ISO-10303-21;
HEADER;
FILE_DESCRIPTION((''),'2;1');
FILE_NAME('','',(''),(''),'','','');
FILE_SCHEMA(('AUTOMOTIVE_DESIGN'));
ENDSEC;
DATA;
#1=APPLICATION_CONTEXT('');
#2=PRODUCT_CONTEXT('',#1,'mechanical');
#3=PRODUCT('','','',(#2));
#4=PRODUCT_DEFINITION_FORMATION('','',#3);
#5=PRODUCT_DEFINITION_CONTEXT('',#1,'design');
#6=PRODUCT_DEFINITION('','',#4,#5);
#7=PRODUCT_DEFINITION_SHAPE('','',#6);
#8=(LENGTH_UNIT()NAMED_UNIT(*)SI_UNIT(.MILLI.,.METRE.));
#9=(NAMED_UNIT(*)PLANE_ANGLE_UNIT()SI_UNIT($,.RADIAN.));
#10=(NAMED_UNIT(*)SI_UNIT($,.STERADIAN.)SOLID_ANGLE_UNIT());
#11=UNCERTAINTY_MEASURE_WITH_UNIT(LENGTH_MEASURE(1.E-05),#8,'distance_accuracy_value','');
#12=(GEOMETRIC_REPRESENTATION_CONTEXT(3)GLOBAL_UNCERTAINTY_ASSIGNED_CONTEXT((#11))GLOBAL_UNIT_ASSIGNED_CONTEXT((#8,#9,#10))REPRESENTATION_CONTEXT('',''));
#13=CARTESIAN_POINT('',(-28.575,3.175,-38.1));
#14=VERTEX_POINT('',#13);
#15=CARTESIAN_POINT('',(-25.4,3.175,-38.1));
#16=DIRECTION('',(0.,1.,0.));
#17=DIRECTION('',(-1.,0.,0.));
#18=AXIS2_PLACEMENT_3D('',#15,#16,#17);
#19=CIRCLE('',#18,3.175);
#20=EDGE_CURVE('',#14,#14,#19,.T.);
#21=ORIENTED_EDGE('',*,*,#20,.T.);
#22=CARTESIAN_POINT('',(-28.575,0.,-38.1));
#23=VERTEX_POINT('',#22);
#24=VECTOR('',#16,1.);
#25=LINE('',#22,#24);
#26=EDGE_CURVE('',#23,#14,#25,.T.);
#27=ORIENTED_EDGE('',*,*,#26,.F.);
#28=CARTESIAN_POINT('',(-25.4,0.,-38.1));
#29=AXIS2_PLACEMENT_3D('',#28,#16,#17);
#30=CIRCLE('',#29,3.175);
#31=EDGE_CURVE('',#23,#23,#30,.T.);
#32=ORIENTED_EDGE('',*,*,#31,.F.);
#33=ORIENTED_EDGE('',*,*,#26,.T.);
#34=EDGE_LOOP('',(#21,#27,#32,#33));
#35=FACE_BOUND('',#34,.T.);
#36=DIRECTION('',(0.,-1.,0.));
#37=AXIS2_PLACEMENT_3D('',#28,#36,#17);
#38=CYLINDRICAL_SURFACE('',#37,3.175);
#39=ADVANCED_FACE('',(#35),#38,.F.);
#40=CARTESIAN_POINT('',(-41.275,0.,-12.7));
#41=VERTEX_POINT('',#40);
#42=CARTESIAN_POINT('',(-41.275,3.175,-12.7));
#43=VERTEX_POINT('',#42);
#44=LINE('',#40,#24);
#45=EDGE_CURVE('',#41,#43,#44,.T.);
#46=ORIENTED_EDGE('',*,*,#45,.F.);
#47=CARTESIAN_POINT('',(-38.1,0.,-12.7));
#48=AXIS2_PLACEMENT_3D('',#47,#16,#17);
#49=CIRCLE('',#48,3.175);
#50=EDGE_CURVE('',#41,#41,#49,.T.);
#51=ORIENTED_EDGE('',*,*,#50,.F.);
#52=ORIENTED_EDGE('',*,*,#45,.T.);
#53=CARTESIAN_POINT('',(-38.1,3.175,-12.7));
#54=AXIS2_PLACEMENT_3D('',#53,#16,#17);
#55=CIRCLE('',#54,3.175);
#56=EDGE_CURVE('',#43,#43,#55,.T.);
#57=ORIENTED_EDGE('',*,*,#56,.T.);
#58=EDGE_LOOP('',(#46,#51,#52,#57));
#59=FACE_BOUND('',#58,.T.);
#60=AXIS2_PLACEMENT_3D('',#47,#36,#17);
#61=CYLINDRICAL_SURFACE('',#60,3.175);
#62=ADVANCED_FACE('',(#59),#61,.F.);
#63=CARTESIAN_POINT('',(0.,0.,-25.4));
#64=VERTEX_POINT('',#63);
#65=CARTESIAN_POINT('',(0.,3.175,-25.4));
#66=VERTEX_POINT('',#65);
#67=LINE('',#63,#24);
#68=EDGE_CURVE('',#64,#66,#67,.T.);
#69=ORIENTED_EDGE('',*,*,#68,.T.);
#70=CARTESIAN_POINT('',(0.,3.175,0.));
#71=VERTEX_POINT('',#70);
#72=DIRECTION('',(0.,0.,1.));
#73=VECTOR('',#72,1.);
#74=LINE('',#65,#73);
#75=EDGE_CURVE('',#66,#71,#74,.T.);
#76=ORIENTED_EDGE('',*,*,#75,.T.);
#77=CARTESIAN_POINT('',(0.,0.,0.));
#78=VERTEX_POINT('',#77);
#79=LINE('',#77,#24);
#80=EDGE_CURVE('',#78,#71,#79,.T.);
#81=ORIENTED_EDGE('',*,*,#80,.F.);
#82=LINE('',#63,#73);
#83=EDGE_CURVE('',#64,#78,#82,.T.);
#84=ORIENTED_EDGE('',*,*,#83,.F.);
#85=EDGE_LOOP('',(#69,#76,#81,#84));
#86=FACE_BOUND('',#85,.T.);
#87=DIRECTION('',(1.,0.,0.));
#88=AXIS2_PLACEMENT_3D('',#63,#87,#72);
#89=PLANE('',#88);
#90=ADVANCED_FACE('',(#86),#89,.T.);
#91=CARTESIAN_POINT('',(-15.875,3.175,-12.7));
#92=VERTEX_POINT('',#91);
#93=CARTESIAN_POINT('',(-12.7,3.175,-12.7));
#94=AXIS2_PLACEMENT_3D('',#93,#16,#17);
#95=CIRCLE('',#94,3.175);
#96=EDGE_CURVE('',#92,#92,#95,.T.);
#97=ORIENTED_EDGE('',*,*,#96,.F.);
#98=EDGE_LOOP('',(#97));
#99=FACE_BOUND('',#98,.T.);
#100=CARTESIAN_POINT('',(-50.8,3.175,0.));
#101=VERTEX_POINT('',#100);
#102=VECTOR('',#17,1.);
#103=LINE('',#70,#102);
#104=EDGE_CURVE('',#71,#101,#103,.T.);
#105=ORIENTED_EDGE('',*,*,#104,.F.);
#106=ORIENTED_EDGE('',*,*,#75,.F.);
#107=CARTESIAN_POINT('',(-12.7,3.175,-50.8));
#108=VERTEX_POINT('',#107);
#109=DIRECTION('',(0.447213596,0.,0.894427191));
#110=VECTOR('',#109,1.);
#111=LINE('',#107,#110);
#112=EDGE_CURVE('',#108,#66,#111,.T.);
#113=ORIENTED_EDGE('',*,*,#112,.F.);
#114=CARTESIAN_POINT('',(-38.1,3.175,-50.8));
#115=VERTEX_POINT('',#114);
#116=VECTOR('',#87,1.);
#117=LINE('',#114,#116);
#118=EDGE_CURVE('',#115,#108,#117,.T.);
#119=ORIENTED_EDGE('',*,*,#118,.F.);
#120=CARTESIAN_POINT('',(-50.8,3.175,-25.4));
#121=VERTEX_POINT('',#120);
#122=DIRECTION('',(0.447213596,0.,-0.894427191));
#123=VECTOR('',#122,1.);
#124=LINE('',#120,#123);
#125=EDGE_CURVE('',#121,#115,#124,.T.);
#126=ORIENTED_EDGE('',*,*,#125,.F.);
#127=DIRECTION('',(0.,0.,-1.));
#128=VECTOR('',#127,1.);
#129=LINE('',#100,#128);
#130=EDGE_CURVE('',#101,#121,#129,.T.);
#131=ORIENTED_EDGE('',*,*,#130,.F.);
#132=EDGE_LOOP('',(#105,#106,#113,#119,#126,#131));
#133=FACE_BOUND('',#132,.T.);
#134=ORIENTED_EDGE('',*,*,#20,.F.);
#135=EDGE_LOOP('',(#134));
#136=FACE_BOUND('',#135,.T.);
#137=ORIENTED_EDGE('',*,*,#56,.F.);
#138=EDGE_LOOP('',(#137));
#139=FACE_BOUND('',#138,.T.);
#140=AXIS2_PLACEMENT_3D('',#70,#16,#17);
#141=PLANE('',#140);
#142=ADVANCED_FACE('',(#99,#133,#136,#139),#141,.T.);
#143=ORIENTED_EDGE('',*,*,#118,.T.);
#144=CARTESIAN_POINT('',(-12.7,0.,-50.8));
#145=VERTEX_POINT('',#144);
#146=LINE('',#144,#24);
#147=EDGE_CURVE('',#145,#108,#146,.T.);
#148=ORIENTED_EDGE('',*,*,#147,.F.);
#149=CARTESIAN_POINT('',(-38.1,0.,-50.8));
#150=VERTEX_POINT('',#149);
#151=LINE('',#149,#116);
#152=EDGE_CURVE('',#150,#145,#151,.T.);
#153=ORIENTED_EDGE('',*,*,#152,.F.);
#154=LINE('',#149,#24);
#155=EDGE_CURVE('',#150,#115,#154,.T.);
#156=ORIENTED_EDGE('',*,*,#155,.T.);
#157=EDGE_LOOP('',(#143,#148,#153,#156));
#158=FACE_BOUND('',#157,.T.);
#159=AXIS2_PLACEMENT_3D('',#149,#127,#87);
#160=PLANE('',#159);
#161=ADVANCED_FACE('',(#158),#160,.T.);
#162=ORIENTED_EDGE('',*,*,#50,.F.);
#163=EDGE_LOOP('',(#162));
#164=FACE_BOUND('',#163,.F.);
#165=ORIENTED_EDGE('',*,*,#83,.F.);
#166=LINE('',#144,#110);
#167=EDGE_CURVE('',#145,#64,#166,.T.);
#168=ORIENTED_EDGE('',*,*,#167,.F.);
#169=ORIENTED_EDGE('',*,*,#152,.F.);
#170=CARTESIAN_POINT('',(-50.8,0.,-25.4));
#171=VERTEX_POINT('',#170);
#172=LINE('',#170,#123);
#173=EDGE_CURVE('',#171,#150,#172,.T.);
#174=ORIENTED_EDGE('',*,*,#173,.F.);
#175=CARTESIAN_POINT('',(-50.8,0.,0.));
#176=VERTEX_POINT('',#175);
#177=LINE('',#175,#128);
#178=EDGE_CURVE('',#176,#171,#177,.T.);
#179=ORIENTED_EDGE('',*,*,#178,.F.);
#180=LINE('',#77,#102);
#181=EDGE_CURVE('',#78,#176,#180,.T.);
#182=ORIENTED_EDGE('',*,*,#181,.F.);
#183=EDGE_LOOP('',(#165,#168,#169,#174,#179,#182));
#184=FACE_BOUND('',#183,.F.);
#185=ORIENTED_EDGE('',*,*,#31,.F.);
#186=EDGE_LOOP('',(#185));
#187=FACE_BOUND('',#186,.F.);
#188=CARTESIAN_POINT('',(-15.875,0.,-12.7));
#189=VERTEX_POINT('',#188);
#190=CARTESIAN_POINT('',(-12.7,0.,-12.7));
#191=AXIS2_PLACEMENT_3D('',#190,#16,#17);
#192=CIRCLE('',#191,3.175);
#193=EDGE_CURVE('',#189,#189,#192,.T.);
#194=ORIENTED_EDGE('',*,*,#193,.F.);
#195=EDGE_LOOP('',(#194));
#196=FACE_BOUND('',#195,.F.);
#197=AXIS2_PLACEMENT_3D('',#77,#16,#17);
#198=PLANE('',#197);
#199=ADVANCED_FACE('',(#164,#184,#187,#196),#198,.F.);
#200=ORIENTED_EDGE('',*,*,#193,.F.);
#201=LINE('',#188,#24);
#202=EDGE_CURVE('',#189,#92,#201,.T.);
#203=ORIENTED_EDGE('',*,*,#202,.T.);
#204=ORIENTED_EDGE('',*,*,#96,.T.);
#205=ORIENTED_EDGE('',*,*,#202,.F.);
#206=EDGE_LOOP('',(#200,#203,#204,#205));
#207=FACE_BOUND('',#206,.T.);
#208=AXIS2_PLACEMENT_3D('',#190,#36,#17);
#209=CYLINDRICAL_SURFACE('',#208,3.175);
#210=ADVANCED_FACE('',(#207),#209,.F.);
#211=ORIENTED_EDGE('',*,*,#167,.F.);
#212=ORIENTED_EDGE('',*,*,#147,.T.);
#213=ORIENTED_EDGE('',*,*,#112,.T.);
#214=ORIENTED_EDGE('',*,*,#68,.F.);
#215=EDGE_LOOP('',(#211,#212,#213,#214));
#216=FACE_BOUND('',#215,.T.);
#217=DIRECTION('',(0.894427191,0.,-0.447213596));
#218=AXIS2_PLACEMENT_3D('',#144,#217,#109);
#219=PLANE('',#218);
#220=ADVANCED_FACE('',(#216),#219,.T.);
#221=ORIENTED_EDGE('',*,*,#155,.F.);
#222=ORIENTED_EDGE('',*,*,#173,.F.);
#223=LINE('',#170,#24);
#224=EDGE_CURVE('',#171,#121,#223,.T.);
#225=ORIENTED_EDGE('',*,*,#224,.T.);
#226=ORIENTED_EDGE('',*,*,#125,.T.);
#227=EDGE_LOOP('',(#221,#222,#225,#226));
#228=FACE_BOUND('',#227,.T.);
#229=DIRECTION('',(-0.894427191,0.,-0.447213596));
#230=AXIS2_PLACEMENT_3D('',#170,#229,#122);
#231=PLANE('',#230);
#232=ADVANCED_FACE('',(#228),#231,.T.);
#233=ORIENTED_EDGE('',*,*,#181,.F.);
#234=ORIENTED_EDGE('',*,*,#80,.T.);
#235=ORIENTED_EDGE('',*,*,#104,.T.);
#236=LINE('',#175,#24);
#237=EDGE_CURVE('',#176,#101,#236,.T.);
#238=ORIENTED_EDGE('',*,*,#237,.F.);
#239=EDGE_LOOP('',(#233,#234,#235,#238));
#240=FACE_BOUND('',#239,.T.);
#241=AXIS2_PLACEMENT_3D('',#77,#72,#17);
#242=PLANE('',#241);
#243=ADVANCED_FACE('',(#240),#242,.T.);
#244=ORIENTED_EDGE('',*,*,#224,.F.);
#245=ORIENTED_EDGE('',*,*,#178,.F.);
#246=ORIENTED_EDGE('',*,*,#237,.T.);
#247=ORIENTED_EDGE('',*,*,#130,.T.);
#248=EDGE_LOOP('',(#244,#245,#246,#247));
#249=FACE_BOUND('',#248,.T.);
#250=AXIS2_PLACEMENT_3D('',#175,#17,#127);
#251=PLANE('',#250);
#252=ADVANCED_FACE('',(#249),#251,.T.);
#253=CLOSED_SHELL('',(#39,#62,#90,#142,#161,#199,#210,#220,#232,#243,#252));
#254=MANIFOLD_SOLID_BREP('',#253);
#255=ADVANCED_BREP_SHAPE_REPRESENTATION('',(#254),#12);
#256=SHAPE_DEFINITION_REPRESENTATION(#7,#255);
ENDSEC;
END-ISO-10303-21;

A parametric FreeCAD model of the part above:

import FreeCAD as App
import Part
import Sketcher

V = App.Vector
Q = App.Units.Quantity


def add_polygon(sketch, points):
    """Adds a closed chain of lines whose ends are joined by coincident constraints."""
    first, n = sketch.GeometryCount, len(points)
    for a, b in zip(points, points[1:] + points[:1]):
        sketch.addGeometry(Part.LineSegment(App.Vector(*a, 0), App.Vector(*b, 0)), False)
    for i in range(n):
        sketch.addConstraint(Sketcher.Constraint("Coincident", first + i, 2, first + (i + 1) % n, 1))

doc = App.newDocument("Part")
body = doc.addObject("PartDesign::Body", "Body")

sketch1 = doc.addObject("Sketcher::SketchObject", "Sketch")
body.addObject(sketch1)
sketch1.AttachmentSupport = (doc.XZ_Plane, [""])
sketch1.MapMode = "FlatFace"
add_polygon(sketch1, [(-50.8, 0), (0, 0), (0, -25.4), (-12.7, -50.8), (-38.1, -50.8), (-50.8, -25.4)])
sketch1.addGeometry(Part.Circle(V(-25.4, -38.1, 0), V(0, 0, 1), 3.2), False)
sketch1.addGeometry(Part.Circle(V(-12.7, -12.7, 0), V(0, 0, 1), 3.2), False)
sketch1.addGeometry(Part.Circle(V(-38.1, -12.7, 0), V(0, 0, 1), 3.2), False)
sketch1.addConstraint([
    Sketcher.Constraint("Horizontal", 0),
    Sketcher.Constraint("Vertical", 1),
    Sketcher.Constraint("Horizontal", 3),
    Sketcher.Constraint("Vertical", 5),
    Sketcher.Constraint("Coincident", 0, 2, -1, 1),
    Sketcher.Constraint("Equal", 6, 7),
    Sketcher.Constraint("Equal", 7, 8),
    Sketcher.Constraint("Horizontal", 7, 3, 8, 3),
    Sketcher.Constraint("Horizontal", 1, 2, 4, 2),
    Sketcher.Constraint("Vertical", 7, 3, 2, 2),
    Sketcher.Constraint("Vertical", 8, 3, 3, 2),
    Sketcher.Constraint("Equal", 3, 1),
    Sketcher.Constraint("Equal", 2, 4),
    Sketcher.Constraint("Diameter", 6, Q("0.25 in")),
    Sketcher.Constraint("DistanceX", 0, 1, 0, 2, Q("2 in")),
    Sketcher.Constraint("DistanceX", 3, 2, 3, 1, Q("1 in")),
    Sketcher.Constraint("DistanceX", 6, 3, -1, 1, Q("1 in")),
    Sketcher.Constraint("DistanceY", 2, 2, -1, 1, Q("2 in")),
    Sketcher.Constraint("DistanceY", 6, 3, 7, 3, Q("1 in")),
    Sketcher.Constraint("DistanceY", 7, 3, -1, 1, Q("0.5 in")),
])
pad1 = doc.addObject("PartDesign::Pad", "Pad")
body.addObject(pad1)
pad1.Profile = sketch1
pad1.Length = Q("0.125 in")
pad1.Reversed = True

doc.recompute()
